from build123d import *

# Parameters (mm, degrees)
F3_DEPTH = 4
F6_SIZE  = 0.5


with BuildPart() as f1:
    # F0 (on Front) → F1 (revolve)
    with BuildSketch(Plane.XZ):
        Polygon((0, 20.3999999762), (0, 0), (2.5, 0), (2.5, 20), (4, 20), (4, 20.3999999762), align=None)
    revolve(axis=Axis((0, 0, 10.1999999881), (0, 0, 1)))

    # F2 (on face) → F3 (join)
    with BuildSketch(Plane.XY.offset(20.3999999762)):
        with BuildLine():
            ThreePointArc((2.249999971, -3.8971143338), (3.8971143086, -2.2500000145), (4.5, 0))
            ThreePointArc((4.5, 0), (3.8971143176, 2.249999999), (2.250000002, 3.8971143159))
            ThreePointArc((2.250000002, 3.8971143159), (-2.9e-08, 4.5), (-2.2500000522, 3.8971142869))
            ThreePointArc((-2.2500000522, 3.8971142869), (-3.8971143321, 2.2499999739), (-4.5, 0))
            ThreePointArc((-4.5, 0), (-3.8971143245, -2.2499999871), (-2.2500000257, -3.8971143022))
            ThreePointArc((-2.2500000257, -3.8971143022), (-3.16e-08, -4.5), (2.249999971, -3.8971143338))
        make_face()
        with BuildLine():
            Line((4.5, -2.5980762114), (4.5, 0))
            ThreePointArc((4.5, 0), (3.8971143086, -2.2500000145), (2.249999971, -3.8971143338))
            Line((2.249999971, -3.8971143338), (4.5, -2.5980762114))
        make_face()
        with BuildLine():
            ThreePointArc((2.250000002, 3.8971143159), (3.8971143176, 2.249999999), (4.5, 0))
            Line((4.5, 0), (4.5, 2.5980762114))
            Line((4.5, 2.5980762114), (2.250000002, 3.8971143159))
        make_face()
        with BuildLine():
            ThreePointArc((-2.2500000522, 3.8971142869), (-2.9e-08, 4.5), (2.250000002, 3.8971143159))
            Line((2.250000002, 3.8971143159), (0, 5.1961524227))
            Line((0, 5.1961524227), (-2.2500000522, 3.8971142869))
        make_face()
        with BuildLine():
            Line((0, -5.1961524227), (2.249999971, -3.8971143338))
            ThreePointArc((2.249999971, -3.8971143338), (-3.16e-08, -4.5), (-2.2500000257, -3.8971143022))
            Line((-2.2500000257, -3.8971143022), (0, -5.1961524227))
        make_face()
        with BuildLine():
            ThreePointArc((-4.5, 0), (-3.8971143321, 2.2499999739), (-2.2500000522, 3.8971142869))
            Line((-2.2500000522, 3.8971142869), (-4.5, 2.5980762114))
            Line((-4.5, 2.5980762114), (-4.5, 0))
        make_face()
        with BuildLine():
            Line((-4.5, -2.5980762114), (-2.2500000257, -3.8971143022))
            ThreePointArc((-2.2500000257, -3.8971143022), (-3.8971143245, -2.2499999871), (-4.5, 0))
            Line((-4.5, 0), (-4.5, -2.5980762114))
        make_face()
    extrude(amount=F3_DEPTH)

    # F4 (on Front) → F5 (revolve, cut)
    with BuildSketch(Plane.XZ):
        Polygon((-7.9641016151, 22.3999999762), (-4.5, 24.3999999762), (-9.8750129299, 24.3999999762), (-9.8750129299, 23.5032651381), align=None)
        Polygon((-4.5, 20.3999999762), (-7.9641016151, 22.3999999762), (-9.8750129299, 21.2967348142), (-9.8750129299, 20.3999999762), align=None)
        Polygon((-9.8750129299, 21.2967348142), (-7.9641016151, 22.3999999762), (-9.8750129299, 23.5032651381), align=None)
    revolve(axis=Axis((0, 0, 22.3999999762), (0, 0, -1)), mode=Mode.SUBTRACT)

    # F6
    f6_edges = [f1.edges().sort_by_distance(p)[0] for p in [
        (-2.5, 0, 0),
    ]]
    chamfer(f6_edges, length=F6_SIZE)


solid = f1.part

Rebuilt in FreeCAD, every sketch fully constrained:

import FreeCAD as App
import Part
import Sketcher

V = App.Vector
Q = App.Units.Quantity


def edges_at(feature, points):
    """Names of the edges that pass closest to the given points."""
    edges = feature.Shape.Edges
    near = lambda p: min(range(len(edges)), key=lambda i: edges[i].distToShape(Part.Vertex(*p))[0])
    return sorted({f"Edge{near(p) + 1}" for p in points})


def add_polygon(sketch, points):
    """Adds a closed chain of lines whose ends are joined by coincident constraints."""
    first, n = sketch.GeometryCount, len(points)
    for a, b in zip(points, points[1:] + points[:1]):
        sketch.addGeometry(Part.LineSegment(App.Vector(*a, 0), App.Vector(*b, 0)), False)
    for i in range(n):
        sketch.addConstraint(Sketcher.Constraint("Coincident", first + i, 2, first + (i + 1) % n, 1))

doc = App.newDocument("Part")
body = doc.addObject("PartDesign::Body", "Body")

# Sketch on XZ plane
sketch1 = doc.addObject("Sketcher::SketchObject", "Sketch")
body.addObject(sketch1)
sketch1.AttachmentSupport = (doc.XZ_Plane, [""])
sketch1.MapMode = "FlatFace"
add_polygon(sketch1, [(0, 20.4), (0, 0), (2.5, 0), (2.5, 20), (4, 20), (4, 20.4)])  # lines 0-5
sketch1.addConstraint([
    Sketcher.Constraint("Vertical", 0),
    Sketcher.Constraint("Horizontal", 1),
    Sketcher.Constraint("Vertical", 2),
    Sketcher.Constraint("Horizontal", 3),
    Sketcher.Constraint("Vertical", 4),
    Sketcher.Constraint("Horizontal", 5),
    Sketcher.Constraint("Coincident", 0, 2, -1, 1),
    Sketcher.Constraint("DistanceX", 5, 2, 5, 1, Q("4 mm")),
    Sketcher.Constraint("DistanceY", 2, 1, 2, 2, Q("20 mm")),
    Sketcher.Constraint("DistanceX", 1, 1, 1, 2, Q("2.5 mm")),
    Sketcher.Constraint("DistanceY", 0, 2, 0, 1, Q("20.4 mm")),
])
revolution = doc.addObject("PartDesign::Revolution", "Revolution")
body.addObject(revolution)
revolution.Profile = sketch1
revolution.ReferenceAxis = (sketch1, ["V_Axis"])
revolution.Angle = 360

# Sketch on XY plane
sketch2 = doc.addObject("Sketcher::SketchObject", "Sketch001")
body.addObject(sketch2)
sketch2.AttachmentSupport = (doc.XY_Plane, [""])
sketch2.MapMode = "FlatFace"
sketch2.AttachmentOffset = App.Placement(V(0, 0, 20.4), App.Rotation())
add_polygon(sketch2, [(-2.3, -3.9), (0, -5.2), (2.2, -3.9), (4.5, -2.6), (4.5, 2.6), (2.3, 3.9), (0, 5.2), (-2.3, 3.9), (-4.5, 2.6), (-4.5, -2.6)])  # lines 0-9
sketch2.addConstraint([
    Sketcher.Constraint("Vertical", 3),
    Sketcher.Constraint("Vertical", 8),
    Sketcher.Constraint("Symmetric", 0, 2, 5, 2, -1, 1),
    Sketcher.Constraint("Symmetric", 1, 2, 6, 2, -1, 1),
    Sketcher.Constraint("Symmetric", 2, 2, 7, 2, -1, 1),
    Sketcher.Constraint("Symmetric", 4, 2, 9, 2, -1, 1),
    Sketcher.Constraint("Symmetric", 4, 2, 6, 2, -2),
    Sketcher.Constraint("PointOnObject", 0, 2, -2),
    Sketcher.Constraint("Parallel", 1, 2),
    Sketcher.Constraint("Parallel", 0, 4),
    Sketcher.Constraint("Parallel", 5, 9),
    Sketcher.Constraint("Equal", 1, 2),
    Sketcher.Constraint("Angle", 0, Q("-30 deg")),
    Sketcher.Constraint("DistanceX", 7, 2, 3, 2, Q("9 mm")),
    Sketcher.Constraint("DistanceY", 3, 1, 3, 2, Q("5.196152 mm")),
])
pad1 = doc.addObject("PartDesign::Pad", "Pad")
body.addObject(pad1)
pad1.Profile = sketch2
pad1.Length = 4

# Sketch on XZ plane
sketch3 = doc.addObject("Sketcher::SketchObject", "Sketch002")
body.addObject(sketch3)
sketch3.AttachmentSupport = (doc.XZ_Plane, [""])
sketch3.MapMode = "FlatFace"
add_polygon(sketch3, [(-8, 22.4), (-4.5, 24.4), (-9.9, 24.4), (-9.9, 20.4), (-4.5, 20.4)])  # lines 0-4
sketch3.addConstraint([
    Sketcher.Constraint("Horizontal", 1),
    Sketcher.Constraint("Vertical", 2),
    Sketcher.Constraint("Horizontal", 3),
    Sketcher.Constraint("Vertical", 0, 2, 3, 2),
    Sketcher.Constraint("Equal", 0, 4),
    Sketcher.Constraint("DistanceY", 2, 2, 2, 1, Q("4 mm")),
    Sketcher.Constraint("Angle", 0, Q("30 deg")),
    Sketcher.Constraint("DistanceX", 0, 2, -1, 1, Q("4.5 mm")),
    Sketcher.Constraint("DistanceY", -1, 1, 0, 2, Q("24.4 mm")),
    Sketcher.Constraint("DistanceX", 1, 2, 1, 1, Q("5.375013 mm")),
])
groove = doc.addObject("PartDesign::Groove", "Groove")
body.addObject(groove)
groove.Profile = sketch3
groove.ReferenceAxis = (sketch3, ["V_Axis"])
groove.Angle = 360
doc.recompute()

chamfer = doc.addObject("PartDesign::Chamfer", "Chamfer")
body.addObject(chamfer)
chamfer.Base = (groove, edges_at(groove, [(-2.5, 0, 0)]))
chamfer.Size = 0.5

doc.recompute()
